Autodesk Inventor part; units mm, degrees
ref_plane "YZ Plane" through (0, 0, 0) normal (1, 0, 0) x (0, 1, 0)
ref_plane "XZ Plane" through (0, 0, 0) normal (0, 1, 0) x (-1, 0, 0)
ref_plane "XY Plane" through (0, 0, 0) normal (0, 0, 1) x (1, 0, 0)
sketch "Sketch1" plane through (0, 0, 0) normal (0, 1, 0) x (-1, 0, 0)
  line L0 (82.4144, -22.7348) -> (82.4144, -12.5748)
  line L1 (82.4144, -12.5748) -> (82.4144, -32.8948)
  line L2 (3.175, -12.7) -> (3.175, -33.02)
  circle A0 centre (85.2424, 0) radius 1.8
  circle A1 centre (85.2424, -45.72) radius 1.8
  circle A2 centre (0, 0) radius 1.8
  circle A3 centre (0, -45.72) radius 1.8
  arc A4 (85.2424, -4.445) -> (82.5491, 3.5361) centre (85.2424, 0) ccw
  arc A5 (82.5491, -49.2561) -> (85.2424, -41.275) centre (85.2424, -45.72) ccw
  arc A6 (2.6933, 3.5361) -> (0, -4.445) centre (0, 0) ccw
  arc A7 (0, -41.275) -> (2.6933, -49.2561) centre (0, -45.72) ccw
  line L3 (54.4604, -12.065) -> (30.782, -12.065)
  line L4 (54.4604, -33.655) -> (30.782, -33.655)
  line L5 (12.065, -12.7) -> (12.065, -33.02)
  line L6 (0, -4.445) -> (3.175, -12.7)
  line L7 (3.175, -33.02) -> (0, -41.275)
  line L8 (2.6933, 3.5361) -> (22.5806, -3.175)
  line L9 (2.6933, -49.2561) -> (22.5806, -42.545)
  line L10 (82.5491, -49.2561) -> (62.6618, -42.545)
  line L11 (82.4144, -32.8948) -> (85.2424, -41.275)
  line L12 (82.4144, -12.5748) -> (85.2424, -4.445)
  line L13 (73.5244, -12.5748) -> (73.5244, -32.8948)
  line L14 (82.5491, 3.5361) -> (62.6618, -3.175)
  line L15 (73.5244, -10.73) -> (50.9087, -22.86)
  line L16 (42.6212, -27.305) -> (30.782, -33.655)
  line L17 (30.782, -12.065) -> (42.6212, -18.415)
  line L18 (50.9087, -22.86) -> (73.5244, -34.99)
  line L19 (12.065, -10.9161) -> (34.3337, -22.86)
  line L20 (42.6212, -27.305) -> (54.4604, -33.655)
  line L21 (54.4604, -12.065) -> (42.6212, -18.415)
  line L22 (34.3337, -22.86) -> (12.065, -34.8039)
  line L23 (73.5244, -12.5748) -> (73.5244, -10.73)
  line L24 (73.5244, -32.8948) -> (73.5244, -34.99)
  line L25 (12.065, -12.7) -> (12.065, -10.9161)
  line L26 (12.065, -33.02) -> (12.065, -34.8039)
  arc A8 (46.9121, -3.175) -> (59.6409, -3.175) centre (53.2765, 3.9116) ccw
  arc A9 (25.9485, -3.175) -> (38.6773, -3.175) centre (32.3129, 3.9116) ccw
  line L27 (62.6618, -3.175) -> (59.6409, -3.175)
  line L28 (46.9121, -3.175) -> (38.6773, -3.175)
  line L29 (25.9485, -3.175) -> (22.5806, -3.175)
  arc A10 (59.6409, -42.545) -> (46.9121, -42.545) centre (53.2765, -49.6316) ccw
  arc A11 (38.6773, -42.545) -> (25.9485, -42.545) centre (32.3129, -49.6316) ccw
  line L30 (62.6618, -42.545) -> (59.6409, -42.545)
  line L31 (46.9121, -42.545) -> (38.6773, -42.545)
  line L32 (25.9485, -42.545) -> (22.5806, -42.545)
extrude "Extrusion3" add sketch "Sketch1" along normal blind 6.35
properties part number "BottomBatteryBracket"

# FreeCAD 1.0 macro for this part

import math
import FreeCAD as App
import Part
import Sketcher
Q = App.Units.Quantity

doc = App.newDocument("Part")
body = doc.addObject("PartDesign::Body", "Body")

# Sketch on XZ plane
sketch1 = doc.addObject("Sketcher::SketchObject", "Sketch")
body.addObject(sketch1)
sketch1.AttachmentSupport = (doc.XZ_Plane, [""])
sketch1.MapMode = "FlatFace"
sketch1.addGeometry(Part.LineSegment(App.Vector(-82.4, -32.9, 0), App.Vector(-82.4, -12.6, 0)), False)
sketch1.addGeometry(Part.LineSegment(App.Vector(-82.4, -12.6, 0), App.Vector(-85.2, -4.4, 0)), False)
sketch1.addGeometry(Part.ArcOfCircle(Part.Circle(App.Vector(-85.2, 0, 0), App.Vector(0, 0, 1), 4.4), math.radians(53), math.radians(270)), False)
sketch1.addGeometry(Part.LineSegment(App.Vector(-82.5, 3.5, 0), App.Vector(-62.7, -3.2, 0)), False)
sketch1.addGeometry(Part.LineSegment(App.Vector(-62.7, -3.2, 0), App.Vector(-59.6, -3.2, 0)), False)
sketch1.addGeometry(Part.ArcOfCircle(Part.Circle(App.Vector(-53.3, 3.9, 0), App.Vector(0, 0, 1), 9.5), math.radians(-132), math.radians(-48)), False)
sketch1.addGeometry(Part.LineSegment(App.Vector(-46.9, -3.2, 0), App.Vector(-38.7, -3.2, 0)), False)
sketch1.addGeometry(Part.ArcOfCircle(Part.Circle(App.Vector(-32.3, 3.9, 0), App.Vector(0, 0, 1), 9.5), math.radians(-132), math.radians(-48)), False)
sketch1.addGeometry(Part.LineSegment(App.Vector(-25.9, -3.2, 0), App.Vector(-22.6, -3.2, 0)), False)
sketch1.addGeometry(Part.LineSegment(App.Vector(-22.6, -3.2, 0), App.Vector(-2.7, 3.5, 0)), False)
sketch1.addGeometry(Part.ArcOfCircle(Part.Circle(App.Vector(0, 0, 0), App.Vector(0, 0, 1), 4.4), math.radians(-90), math.radians(127)), False)
sketch1.addGeometry(Part.LineSegment(App.Vector(0, -4.4, 0), App.Vector(-3.2, -12.7, 0)), False)
sketch1.addGeometry(Part.LineSegment(App.Vector(-3.2, -12.7, 0), App.Vector(-3.2, -33, 0)), False)
sketch1.addGeometry(Part.LineSegment(App.Vector(-3.2, -33, 0), App.Vector(0, -41.3, 0)), False)
sketch1.addGeometry(Part.ArcOfCircle(Part.Circle(App.Vector(0, -45.7, 0), App.Vector(0, 0, 1), 4.4), math.radians(-127), math.radians(90)), False)
sketch1.addGeometry(Part.LineSegment(App.Vector(-2.7, -49.3, 0), App.Vector(-22.6, -42.5, 0)), False)
sketch1.addGeometry(Part.LineSegment(App.Vector(-22.6, -42.5, 0), App.Vector(-25.9, -42.5, 0)), False)
sketch1.addGeometry(Part.ArcOfCircle(Part.Circle(App.Vector(-32.3, -49.6, 0), App.Vector(0, 0, 1), 9.5), math.radians(48), math.radians(132)), False)
sketch1.addGeometry(Part.LineSegment(App.Vector(-38.7, -42.5, 0), App.Vector(-46.9, -42.5, 0)), False)
sketch1.addGeometry(Part.ArcOfCircle(Part.Circle(App.Vector(-53.3, -49.6, 0), App.Vector(0, 0, 1), 9.5), math.radians(48), math.radians(132)), False)
sketch1.addGeometry(Part.LineSegment(App.Vector(-59.6, -42.5, 0), App.Vector(-62.7, -42.5, 0)), False)
sketch1.addGeometry(Part.LineSegment(App.Vector(-62.7, -42.5, 0), App.Vector(-82.5, -49.3, 0)), False)
sketch1.addGeometry(Part.ArcOfCircle(Part.Circle(App.Vector(-85.2, -45.7, 0), App.Vector(0, 0, 1), 4.4), math.radians(90), math.radians(307)), False)
sketch1.addGeometry(Part.LineSegment(App.Vector(-85.2, -41.3, 0), App.Vector(-82.4, -32.9, 0)), False)
sketch1.addGeometry(Part.Circle(App.Vector(0, -45.7, 0), App.Vector(0, 0, 1), 1.8), False)
sketch1.addGeometry(Part.LineSegment(App.Vector(-42.6, -27.3, 0), App.Vector(-54.5, -33.7, 0)), False)
sketch1.addGeometry(Part.LineSegment(App.Vector(-54.5, -33.7, 0), App.Vector(-30.8, -33.7, 0)), False)
sketch1.addGeometry(Part.LineSegment(App.Vector(-30.8, -33.7, 0), App.Vector(-42.6, -27.3, 0)), False)
sketch1.addGeometry(Part.Circle(App.Vector(-85.2, -45.7, 0), App.Vector(0, 0, 1), 1.8), False)
sketch1.addGeometry(Part.LineSegment(App.Vector(-12.1, -34.8, 0), App.Vector(-12.1, -10.9, 0)), False)
sketch1.addGeometry(Part.LineSegment(App.Vector(-12.1, -10.9, 0), App.Vector(-34.3, -22.9, 0)), False)
sketch1.addGeometry(Part.LineSegment(App.Vector(-34.3, -22.9, 0), App.Vector(-12.1, -34.8, 0)), False)
sketch1.addGeometry(Part.LineSegment(App.Vector(-30.8, -12.1, 0), App.Vector(-54.5, -12.1, 0)), False)
sketch1.addGeometry(Part.LineSegment(App.Vector(-54.5, -12.1, 0), App.Vector(-42.6, -18.4, 0)), False)
sketch1.addGeometry(Part.LineSegment(App.Vector(-42.6, -18.4, 0), App.Vector(-30.8, -12.1, 0)), False)
sketch1.addGeometry(Part.Circle(App.Vector(0, 0, 0), App.Vector(0, 0, 1), 1.8), False)
sketch1.addGeometry(Part.LineSegment(App.Vector(-73.5, -10.7, 0), App.Vector(-73.5, -35, 0)), False)
sketch1.addGeometry(Part.LineSegment(App.Vector(-73.5, -35, 0), App.Vector(-50.9, -22.9, 0)), False)
sketch1.addGeometry(Part.LineSegment(App.Vector(-50.9, -22.9, 0), App.Vector(-73.5, -10.7, 0)), False)
sketch1.addGeometry(Part.Circle(App.Vector(-85.2, 0, 0), App.Vector(0, 0, 1), 1.8), False)
sketch1.addConstraint(Sketcher.Constraint("Coincident", 0, 2, 1, 1))
sketch1.addConstraint(Sketcher.Constraint("Coincident", 1, 2, 2, 2))
sketch1.addConstraint(Sketcher.Constraint("Coincident", 2, 1, 3, 1))
sketch1.addConstraint(Sketcher.Constraint("Coincident", 3, 2, 4, 1))
sketch1.addConstraint(Sketcher.Constraint("Coincident", 4, 2, 5, 1))
sketch1.addConstraint(Sketcher.Constraint("Coincident", 5, 2, 6, 1))
sketch1.addConstraint(Sketcher.Constraint("Coincident", 6, 2, 7, 1))
sketch1.addConstraint(Sketcher.Constraint("Coincident", 7, 2, 8, 1))
sketch1.addConstraint(Sketcher.Constraint("Coincident", 8, 2, 9, 1))
sketch1.addConstraint(Sketcher.Constraint("Coincident", 9, 2, 10, 2))
sketch1.addConstraint(Sketcher.Constraint("Coincident", 10, 1, 11, 1))
sketch1.addConstraint(Sketcher.Constraint("Coincident", 11, 2, 12, 1))
sketch1.addConstraint(Sketcher.Constraint("Coincident", 12, 2, 13, 1))
sketch1.addConstraint(Sketcher.Constraint("Coincident", 13, 2, 14, 2))
sketch1.addConstraint(Sketcher.Constraint("Coincident", 14, 1, 15, 1))
sketch1.addConstraint(Sketcher.Constraint("Coincident", 15, 2, 16, 1))
sketch1.addConstraint(Sketcher.Constraint("Coincident", 16, 2, 17, 1))
sketch1.addConstraint(Sketcher.Constraint("Coincident", 17, 2, 18, 1))
sketch1.addConstraint(Sketcher.Constraint("Coincident", 18, 2, 19, 1))
sketch1.addConstraint(Sketcher.Constraint("Coincident", 19, 2, 20, 1))
sketch1.addConstraint(Sketcher.Constraint("Coincident", 20, 2, 21, 1))
sketch1.addConstraint(Sketcher.Constraint("Coincident", 21, 2, 22, 2))
sketch1.addConstraint(Sketcher.Constraint("Coincident", 22, 1, 23, 1))
sketch1.addConstraint(Sketcher.Constraint("Coincident", 23, 2, 0, 1))
sketch1.addConstraint(Sketcher.Constraint("Coincident", 25, 2, 26, 1))
sketch1.addConstraint(Sketcher.Constraint("Coincident", 26, 2, 27, 1))
sketch1.addConstraint(Sketcher.Constraint("Coincident", 27, 2, 25, 1))
sketch1.addConstraint(Sketcher.Constraint("Coincident", 29, 2, 30, 1))
sketch1.addConstraint(Sketcher.Constraint("Coincident", 30, 2, 31, 1))
sketch1.addConstraint(Sketcher.Constraint("Coincident", 31, 2, 29, 1))
sketch1.addConstraint(Sketcher.Constraint("Coincident", 32, 2, 33, 1))
sketch1.addConstraint(Sketcher.Constraint("Coincident", 33, 2, 34, 1))
sketch1.addConstraint(Sketcher.Constraint("Coincident", 34, 2, 32, 1))
sketch1.addConstraint(Sketcher.Constraint("Coincident", 36, 2, 37, 1))
sketch1.addConstraint(Sketcher.Constraint("Coincident", 37, 2, 38, 1))
sketch1.addConstraint(Sketcher.Constraint("Coincident", 38, 2, 36, 1))
sketch1.addConstraint(Sketcher.Constraint("Vertical", 0))
sketch1.addConstraint(Sketcher.Constraint("Horizontal", 4))
sketch1.addConstraint(Sketcher.Constraint("Horizontal", 6))
sketch1.addConstraint(Sketcher.Constraint("Horizontal", 8))
sketch1.addConstraint(Sketcher.Constraint("Vertical", 12))
sketch1.addConstraint(Sketcher.Constraint("Horizontal", 16))
sketch1.addConstraint(Sketcher.Constraint("Horizontal", 18))
sketch1.addConstraint(Sketcher.Constraint("Horizontal", 20))
sketch1.addConstraint(Sketcher.Constraint("Horizontal", 26))
sketch1.addConstraint(Sketcher.Constraint("Vertical", 29))
sketch1.addConstraint(Sketcher.Constraint("Horizontal", 32))
sketch1.addConstraint(Sketcher.Constraint("Vertical", 36))
sketch1.addConstraint(Sketcher.Constraint("Coincident", 10, 3, -1, 1))
sketch1.addConstraint(Sketcher.Constraint("Coincident", 35, 3, -1, 1))
sketch1.addConstraint(Sketcher.Constraint("Coincident", 24, 3, 14, 3))
sketch1.addConstraint(Sketcher.Constraint("Coincident", 28, 3, 22, 3))
sketch1.addConstraint(Sketcher.Constraint("Coincident", 39, 3, 2, 3))
sketch1.addConstraint(Sketcher.Constraint("Equal", 5, 7))
sketch1.addConstraint(Sketcher.Constraint("Equal", 2, 10))
sketch1.addConstraint(Sketcher.Constraint("Equal", 10, 14))
sketch1.addConstraint(Sketcher.Constraint("Equal", 7, 17))
sketch1.addConstraint(Sketcher.Constraint("Equal", 17, 19))
sketch1.addConstraint(Sketcher.Constraint("Equal", 14, 22))
sketch1.addConstraint(Sketcher.Constraint("Equal", 24, 28))
sketch1.addConstraint(Sketcher.Constraint("Equal", 28, 35))
sketch1.addConstraint(Sketcher.Constraint("Equal", 35, 39))
sketch1.addConstraint(Sketcher.Constraint("PointOnObject", 2, 3, -1))
sketch1.addConstraint(Sketcher.Constraint("PointOnObject", 14, 3, -2))
sketch1.addConstraint(Sketcher.Constraint("PointOnObject", 10, 1, -2))
sketch1.addConstraint(Sketcher.Constraint("PointOnObject", 13, 2, -2))
sketch1.addConstraint(Sketcher.Constraint("Parallel", 3, 15))
sketch1.addConstraint(Sketcher.Constraint("Parallel", 9, 21))
sketch1.addConstraint(Sketcher.Constraint("Perpendicular", 15, 23))
sketch1.addConstraint(Sketcher.Constraint("Parallel", 25, 30))
sketch1.addConstraint(Sketcher.Constraint("Parallel", 27, 31))
sketch1.addConstraint(Sketcher.Constraint("Parallel", 31, 33))
sketch1.addConstraint(Sketcher.Constraint("Parallel", 30, 34))
sketch1.addConstraint(Sketcher.Constraint("Parallel", 34, 37))
sketch1.addConstraint(Sketcher.Constraint("Parallel", 33, 38))
sketch1.addConstraint(Sketcher.Constraint("Horizontal", 5, 3, 7, 3))
sketch1.addConstraint(Sketcher.Constraint("Horizontal", 17, 3, 19, 3))
sketch1.addConstraint(Sketcher.Constraint("Horizontal", 14, 3, 22, 3))
sketch1.addConstraint(Sketcher.Constraint("Horizontal", 4, 2, 5, 2))
sketch1.addConstraint(Sketcher.Constraint("Horizontal", 6, 2, 7, 2))
sketch1.addConstraint(Sketcher.Constraint("Horizontal", 2, 1, 9, 2))
sketch1.addConstraint(Sketcher.Constraint("Horizontal", 16, 2, 17, 2))
sketch1.addConstraint(Sketcher.Constraint("Horizontal", 18, 2, 19, 2))
sketch1.addConstraint(Sketcher.Constraint("Horizontal", 14, 1, 21, 2))
sketch1.addConstraint(Sketcher.Constraint("Horizontal", 30, 2, 37, 2))
sketch1.addConstraint(Sketcher.Constraint("Vertical", 7, 3, 17, 3))
sketch1.addConstraint(Sketcher.Constraint("Vertical", 5, 3, 19, 3))
sketch1.addConstraint(Sketcher.Constraint("Vertical", 2, 3, 22, 3))
sketch1.addConstraint(Sketcher.Constraint("Vertical", 39, 3, 1, 2))
sketch1.addConstraint(Sketcher.Constraint("Vertical", 9, 2, 14, 1))
sketch1.addConstraint(Sketcher.Constraint("Vertical", 8, 2, 15, 2))
sketch1.addConstraint(Sketcher.Constraint("Vertical", 7, 2, 16, 2))
sketch1.addConstraint(Sketcher.Constraint("Vertical", 3, 2, 20, 2))
sketch1.addConstraint(Sketcher.Constraint("Vertical", 1, 2, 22, 1))
sketch1.addConstraint(Sketcher.Constraint("Vertical", 25, 2, 32, 2))
sketch1.addConstraint(Sketcher.Constraint("Vertical", 27, 2, 33, 2))
sketch1.addConstraint(Sketcher.Constraint("Vertical", 26, 2, 34, 2))
sketch1.addConstraint(Sketcher.Constraint("Equal", 0, 12))
sketch1.addConstraint(Sketcher.Constraint("Equal", 11, 13))
sketch1.addConstraint(Sketcher.Constraint("Equal", 13, 23))
sketch1.addConstraint(Sketcher.Constraint("DistanceY", 0, 1, 0, 2, Q("0.8 in")))
sketch1.addConstraint(Sketcher.Constraint("Radius", 2, Q("0.175 in")))
sketch1.addConstraint(Sketcher.Constraint("Radius", 5, Q("0.375 in")))
sketch1.addConstraint(Sketcher.Constraint("DistanceY", 14, 3, -1, 1, Q("1.8 in")))
sketch1.addConstraint(Sketcher.Constraint("DistanceY", 30, 2, -1, 1, Q("0.9 in")))
sketch1.addConstraint(Sketcher.Constraint("DistanceY", 17, 2, 27, 2, Q("0.6 in")))
sketch1.addConstraint(Sketcher.Constraint("DistanceY", 33, 2, 6, 2, Q("0.6 in")))
sketch1.addConstraint(Sketcher.Constraint("Diameter", 24, 3.6))
sketch1.addConstraint(Sketcher.Constraint("Angle", 1, Q("109.1805 deg")))
sketch1.addConstraint(Sketcher.Constraint("DistanceY", 1, 2, 3, 2, Q("0.05 in")))
sketch1.addConstraint(Sketcher.Constraint("DistanceY", 19, 2, 25, 2, Q("0.35 in")))
sketch1.addConstraint(Sketcher.Constraint("DistanceX", 29, 2, 11, 2, Q("0.35 in")))
sketch1.addConstraint(Sketcher.Constraint("DistanceX", 23, 2, 36, 2, Q("0.35 in")))
sketch1.addConstraint(Sketcher.Constraint("DistanceX", 6, 1, 6, 2, Q("0.3242 in")))
sketch1.addConstraint(Sketcher.Constraint("DistanceX", 8, 1, 8, 2, Q("0.1326 in")))
sketch1.addConstraint(Sketcher.Constraint("DistanceX", 2, 3, -1, 1, Q("3.356 in")))
sketch1.addConstraint(Sketcher.Constraint("DistanceY", -1, 1, 5, 3, Q("0.154 in")))
sketch1.addConstraint(Sketcher.Constraint("DistanceX", 3, 2, -1, 1, Q("2.467 in")))
sketch1.addConstraint(Sketcher.Constraint("DistanceX", 11, 2, -1, 1, Q("0.125 in")))
sketch1.addConstraint(Sketcher.Constraint("DistanceX", 27, 2, -1, 1, Q("1.678 in")))
sketch1.addConstraint(Sketcher.Constraint("DistanceX", 6, 2, 30, 2, Q("0.171 in")))
sketch1.addConstraint(Sketcher.Constraint("DistanceX", 26, 1, 26, 2, 23.6784))
sketch1.addConstraint(Sketcher.Constraint("DistanceY", 36, 2, 36, 1, 24.26))
pad1 = doc.addObject("PartDesign::Pad", "Pad")
body.addObject(pad1)
pad1.Profile = sketch1
pad1.Length = Q("0.25 in")
pad1.Reversed = True

doc.recompute()
